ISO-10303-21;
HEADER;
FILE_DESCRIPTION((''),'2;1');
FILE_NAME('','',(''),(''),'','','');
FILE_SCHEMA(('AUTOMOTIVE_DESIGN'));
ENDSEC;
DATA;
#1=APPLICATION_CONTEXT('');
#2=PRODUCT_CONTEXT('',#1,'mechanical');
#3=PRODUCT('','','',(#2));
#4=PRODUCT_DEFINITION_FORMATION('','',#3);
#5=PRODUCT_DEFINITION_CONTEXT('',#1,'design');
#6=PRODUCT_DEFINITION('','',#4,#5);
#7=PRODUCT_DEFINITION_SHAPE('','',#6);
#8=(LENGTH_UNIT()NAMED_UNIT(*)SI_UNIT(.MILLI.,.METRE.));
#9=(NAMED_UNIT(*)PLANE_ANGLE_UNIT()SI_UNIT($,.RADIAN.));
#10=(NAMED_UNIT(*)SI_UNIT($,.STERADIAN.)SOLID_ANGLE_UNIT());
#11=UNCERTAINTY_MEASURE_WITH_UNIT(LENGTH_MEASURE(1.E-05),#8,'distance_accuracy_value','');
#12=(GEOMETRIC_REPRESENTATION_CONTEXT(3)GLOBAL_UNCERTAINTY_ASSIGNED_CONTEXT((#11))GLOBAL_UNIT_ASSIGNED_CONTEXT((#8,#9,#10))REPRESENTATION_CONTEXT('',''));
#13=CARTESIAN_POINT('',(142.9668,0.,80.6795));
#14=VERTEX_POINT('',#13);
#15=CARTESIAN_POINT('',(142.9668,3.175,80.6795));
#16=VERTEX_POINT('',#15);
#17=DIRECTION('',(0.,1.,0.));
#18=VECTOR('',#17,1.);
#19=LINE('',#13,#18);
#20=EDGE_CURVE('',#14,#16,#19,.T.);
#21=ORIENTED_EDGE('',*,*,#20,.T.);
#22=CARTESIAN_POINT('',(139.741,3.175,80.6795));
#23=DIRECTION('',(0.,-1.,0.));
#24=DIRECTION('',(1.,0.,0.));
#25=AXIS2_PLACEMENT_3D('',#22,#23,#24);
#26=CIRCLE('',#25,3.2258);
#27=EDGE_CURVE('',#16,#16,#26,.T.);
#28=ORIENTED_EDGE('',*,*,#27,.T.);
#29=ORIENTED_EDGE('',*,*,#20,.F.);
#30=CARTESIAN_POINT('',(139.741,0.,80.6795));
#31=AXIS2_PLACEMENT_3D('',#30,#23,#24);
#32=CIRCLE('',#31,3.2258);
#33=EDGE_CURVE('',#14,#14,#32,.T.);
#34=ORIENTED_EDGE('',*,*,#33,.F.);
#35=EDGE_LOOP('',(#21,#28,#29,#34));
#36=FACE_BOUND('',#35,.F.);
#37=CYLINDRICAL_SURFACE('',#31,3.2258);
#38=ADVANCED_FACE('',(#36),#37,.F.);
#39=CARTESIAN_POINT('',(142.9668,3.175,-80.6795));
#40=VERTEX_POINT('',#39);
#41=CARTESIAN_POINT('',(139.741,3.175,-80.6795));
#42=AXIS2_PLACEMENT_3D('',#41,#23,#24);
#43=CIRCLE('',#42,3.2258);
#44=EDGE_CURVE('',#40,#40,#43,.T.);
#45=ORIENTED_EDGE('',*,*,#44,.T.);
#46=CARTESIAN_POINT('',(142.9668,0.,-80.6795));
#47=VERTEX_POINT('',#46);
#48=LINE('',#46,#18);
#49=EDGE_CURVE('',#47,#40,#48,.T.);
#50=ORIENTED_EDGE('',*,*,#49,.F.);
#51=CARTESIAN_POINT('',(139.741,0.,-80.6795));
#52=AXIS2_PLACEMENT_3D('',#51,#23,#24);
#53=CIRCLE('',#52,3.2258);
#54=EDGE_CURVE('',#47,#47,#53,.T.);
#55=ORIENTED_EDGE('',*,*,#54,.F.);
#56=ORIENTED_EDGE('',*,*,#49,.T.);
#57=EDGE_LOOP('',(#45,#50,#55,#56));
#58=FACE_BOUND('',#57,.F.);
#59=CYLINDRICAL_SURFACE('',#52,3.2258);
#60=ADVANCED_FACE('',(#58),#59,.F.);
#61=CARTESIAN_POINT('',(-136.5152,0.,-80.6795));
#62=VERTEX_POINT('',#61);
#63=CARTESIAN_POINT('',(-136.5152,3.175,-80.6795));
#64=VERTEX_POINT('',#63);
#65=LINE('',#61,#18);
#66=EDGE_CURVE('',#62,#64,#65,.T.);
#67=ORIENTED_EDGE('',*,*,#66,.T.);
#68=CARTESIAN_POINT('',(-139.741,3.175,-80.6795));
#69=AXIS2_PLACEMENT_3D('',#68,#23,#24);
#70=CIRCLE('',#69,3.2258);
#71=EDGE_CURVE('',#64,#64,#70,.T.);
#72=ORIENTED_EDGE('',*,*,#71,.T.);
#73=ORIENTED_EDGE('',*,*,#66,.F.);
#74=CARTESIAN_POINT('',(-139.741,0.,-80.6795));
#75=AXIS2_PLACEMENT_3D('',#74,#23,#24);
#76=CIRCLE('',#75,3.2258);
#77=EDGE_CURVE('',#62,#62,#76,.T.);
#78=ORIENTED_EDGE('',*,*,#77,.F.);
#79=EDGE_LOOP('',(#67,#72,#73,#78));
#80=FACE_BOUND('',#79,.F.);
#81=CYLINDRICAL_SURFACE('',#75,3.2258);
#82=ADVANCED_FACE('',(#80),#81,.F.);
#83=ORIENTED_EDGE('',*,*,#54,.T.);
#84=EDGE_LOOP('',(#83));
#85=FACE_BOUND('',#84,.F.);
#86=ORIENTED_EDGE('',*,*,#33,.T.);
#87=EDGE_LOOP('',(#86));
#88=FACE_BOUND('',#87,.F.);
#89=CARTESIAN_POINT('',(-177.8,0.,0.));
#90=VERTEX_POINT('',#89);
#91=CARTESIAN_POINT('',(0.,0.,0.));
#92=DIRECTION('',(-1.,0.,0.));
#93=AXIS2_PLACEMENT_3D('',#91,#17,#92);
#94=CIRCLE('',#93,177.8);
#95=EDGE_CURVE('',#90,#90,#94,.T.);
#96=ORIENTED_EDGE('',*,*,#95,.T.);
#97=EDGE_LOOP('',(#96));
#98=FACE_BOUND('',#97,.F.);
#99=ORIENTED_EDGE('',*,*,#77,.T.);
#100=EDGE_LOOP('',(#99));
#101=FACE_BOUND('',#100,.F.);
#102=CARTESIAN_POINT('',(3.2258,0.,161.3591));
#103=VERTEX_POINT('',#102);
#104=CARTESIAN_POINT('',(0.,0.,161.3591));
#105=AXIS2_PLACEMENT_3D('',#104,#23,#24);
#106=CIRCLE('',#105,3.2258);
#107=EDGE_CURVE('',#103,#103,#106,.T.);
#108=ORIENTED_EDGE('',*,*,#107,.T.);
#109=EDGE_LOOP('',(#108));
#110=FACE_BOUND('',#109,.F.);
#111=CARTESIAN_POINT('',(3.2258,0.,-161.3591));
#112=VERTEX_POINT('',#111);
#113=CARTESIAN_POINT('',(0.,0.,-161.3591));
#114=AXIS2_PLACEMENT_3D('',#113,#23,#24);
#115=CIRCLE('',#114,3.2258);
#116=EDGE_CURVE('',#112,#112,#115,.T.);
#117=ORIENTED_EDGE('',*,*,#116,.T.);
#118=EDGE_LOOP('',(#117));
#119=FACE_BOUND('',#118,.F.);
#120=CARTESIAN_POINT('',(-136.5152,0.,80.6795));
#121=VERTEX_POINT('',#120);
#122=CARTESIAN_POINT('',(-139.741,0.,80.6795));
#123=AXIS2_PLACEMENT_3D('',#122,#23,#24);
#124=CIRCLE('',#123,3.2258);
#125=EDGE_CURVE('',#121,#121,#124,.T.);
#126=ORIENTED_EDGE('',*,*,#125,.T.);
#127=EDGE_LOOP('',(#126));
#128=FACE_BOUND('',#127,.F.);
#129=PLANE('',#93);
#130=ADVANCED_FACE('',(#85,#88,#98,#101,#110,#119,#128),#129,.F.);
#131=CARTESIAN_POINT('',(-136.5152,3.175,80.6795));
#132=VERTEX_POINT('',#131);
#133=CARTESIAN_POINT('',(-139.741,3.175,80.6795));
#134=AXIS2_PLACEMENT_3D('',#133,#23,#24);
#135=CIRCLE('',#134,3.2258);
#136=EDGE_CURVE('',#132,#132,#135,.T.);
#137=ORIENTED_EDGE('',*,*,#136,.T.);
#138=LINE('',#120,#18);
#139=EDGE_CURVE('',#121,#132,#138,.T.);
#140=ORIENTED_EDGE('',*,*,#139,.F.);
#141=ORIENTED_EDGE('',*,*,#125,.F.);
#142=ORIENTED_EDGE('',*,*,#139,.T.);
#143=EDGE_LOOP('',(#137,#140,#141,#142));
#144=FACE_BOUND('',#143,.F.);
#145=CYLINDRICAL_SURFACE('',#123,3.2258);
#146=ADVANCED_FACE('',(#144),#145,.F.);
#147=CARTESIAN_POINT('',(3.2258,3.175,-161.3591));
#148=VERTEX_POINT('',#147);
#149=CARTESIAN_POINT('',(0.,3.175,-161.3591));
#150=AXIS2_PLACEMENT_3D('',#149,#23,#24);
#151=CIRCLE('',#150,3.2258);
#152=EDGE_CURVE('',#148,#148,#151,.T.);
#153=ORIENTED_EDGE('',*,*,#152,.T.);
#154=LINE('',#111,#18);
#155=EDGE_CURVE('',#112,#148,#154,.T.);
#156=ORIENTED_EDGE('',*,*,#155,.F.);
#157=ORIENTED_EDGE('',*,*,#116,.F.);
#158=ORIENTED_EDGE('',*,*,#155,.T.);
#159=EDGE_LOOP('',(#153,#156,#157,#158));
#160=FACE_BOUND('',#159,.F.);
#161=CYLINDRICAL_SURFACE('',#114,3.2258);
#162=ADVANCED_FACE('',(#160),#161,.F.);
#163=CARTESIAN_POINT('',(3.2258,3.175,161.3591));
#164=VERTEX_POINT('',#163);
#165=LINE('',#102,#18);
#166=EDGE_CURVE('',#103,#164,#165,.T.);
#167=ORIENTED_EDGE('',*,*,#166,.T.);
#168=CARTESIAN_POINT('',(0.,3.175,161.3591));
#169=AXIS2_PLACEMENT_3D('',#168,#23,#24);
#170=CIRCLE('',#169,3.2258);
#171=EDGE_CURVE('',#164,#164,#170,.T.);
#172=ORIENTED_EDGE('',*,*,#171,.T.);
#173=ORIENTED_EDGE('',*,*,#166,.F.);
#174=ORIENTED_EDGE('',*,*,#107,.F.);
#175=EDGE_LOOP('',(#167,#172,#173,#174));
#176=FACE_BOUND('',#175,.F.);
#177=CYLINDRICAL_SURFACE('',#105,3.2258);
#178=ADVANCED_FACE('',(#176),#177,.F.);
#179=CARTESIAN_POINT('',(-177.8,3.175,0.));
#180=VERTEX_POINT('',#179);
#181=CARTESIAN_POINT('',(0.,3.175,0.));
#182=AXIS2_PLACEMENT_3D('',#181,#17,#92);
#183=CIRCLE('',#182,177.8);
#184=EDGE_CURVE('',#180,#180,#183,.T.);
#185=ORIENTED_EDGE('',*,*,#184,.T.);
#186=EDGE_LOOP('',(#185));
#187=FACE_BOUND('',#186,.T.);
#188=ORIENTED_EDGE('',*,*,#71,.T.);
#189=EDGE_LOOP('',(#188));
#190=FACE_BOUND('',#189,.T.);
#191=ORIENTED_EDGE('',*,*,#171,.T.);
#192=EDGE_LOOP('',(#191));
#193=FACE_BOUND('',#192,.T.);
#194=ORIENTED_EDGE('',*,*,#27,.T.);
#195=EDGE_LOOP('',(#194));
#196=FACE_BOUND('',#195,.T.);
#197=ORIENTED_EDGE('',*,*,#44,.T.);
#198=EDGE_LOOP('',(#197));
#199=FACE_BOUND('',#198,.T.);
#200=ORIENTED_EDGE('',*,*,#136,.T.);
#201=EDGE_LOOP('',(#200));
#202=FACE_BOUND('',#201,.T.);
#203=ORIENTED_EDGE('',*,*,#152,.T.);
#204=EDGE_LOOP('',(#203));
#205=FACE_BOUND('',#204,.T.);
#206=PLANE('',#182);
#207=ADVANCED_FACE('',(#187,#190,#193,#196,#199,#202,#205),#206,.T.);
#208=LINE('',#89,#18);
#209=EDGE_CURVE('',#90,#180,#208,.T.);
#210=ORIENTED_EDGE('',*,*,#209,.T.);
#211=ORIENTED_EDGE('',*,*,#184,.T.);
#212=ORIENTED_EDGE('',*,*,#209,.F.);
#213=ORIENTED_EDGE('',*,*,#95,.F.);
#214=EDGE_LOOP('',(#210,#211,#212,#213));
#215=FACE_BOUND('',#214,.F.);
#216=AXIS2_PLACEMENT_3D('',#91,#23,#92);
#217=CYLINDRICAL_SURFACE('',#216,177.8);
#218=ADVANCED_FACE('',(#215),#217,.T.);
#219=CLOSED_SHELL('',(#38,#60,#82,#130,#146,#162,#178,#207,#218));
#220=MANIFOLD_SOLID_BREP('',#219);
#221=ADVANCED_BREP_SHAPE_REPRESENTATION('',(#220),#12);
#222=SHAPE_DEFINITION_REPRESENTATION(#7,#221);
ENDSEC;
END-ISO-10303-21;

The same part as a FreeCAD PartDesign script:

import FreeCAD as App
import Part
import Sketcher
Q = App.Units.Quantity

doc = App.newDocument("Part")
body = doc.addObject("PartDesign::Body", "Body")

sketch1 = body.newObject("Sketcher::SketchObject", "Sketch")
sketch1.AttachmentSupport = (doc.getObject("XZ_Plane"), [""])
sketch1.MapMode = "FlatFace"
sketch1.addGeometry(Part.Circle(App.Vector(0, 0, 0), App.Vector(0, 0, 1), 178), False)
sketch1.addConstraint([
    Sketcher.Constraint("Coincident", 0, 3, -1, 1),
    Sketcher.Constraint("Diameter", 0, Q("14 in")),
])
pad1 = body.newObject("PartDesign::Pad", "Pad")
pad1.Profile = sketch1
pad1.Length = Q("0.125 in")
pad1.Reversed = True

sketch2 = body.newObject("Sketcher::SketchObject", "Sketch001")
sketch2.AttachmentSupport = (doc.getObject("XZ_Plane"), [""])
sketch2.MapMode = "FlatFace"
sketch2.addGeometry([
    Part.Circle(App.Vector(139.7, -80.7, 0), App.Vector(0, 0, 1), 3.2),
    Part.Circle(App.Vector(139.7, 80.7, 0), App.Vector(0, 0, 1), 3.2),
    Part.Circle(App.Vector(0, 161.4, 0), App.Vector(0, 0, 1), 3.2),
    Part.Circle(App.Vector(-139.7, 80.7, 0), App.Vector(0, 0, 1), 3.2),
    Part.Circle(App.Vector(-139.7, -80.7, 0), App.Vector(0, 0, 1), 3.2),
    Part.Circle(App.Vector(0, -161.4, 0), App.Vector(0, 0, 1), 3.2),
], False)
sketch2.addConstraint([
    Sketcher.Constraint("Equal", 0, 1),
    Sketcher.Constraint("Equal", 1, 2),
    Sketcher.Constraint("Equal", 2, 3),
    Sketcher.Constraint("Equal", 3, 4),
    Sketcher.Constraint("Equal", 4, 5),
    Sketcher.Constraint("Symmetric", 0, 3, 3, 3, -1, 1),
    Sketcher.Constraint("Symmetric", 1, 3, 4, 3, -1, 1),
    Sketcher.Constraint("Symmetric", 2, 3, 5, 3, -1, 1),
    Sketcher.Constraint("Symmetric", 1, 3, 3, 3, -2),
    Sketcher.Constraint("PointOnObject", 2, 3, -2),
    Sketcher.Constraint("Diameter", 0, Q("0.254 in")),
    Sketcher.Constraint("DistanceX", -1, 1, 0, 3, Q("139.741 mm")),
    Sketcher.Constraint("DistanceY", 0, 3, -1, 1, Q("80.6795 mm")),
    Sketcher.Constraint("DistanceY", -1, 1, 2, 3, Q("161.359 mm")),
])
pocket1 = body.newObject("PartDesign::Pocket", "Pocket")
pocket1.Profile = sketch2
pocket1.Type = "ThroughAll"

doc.recompute()
